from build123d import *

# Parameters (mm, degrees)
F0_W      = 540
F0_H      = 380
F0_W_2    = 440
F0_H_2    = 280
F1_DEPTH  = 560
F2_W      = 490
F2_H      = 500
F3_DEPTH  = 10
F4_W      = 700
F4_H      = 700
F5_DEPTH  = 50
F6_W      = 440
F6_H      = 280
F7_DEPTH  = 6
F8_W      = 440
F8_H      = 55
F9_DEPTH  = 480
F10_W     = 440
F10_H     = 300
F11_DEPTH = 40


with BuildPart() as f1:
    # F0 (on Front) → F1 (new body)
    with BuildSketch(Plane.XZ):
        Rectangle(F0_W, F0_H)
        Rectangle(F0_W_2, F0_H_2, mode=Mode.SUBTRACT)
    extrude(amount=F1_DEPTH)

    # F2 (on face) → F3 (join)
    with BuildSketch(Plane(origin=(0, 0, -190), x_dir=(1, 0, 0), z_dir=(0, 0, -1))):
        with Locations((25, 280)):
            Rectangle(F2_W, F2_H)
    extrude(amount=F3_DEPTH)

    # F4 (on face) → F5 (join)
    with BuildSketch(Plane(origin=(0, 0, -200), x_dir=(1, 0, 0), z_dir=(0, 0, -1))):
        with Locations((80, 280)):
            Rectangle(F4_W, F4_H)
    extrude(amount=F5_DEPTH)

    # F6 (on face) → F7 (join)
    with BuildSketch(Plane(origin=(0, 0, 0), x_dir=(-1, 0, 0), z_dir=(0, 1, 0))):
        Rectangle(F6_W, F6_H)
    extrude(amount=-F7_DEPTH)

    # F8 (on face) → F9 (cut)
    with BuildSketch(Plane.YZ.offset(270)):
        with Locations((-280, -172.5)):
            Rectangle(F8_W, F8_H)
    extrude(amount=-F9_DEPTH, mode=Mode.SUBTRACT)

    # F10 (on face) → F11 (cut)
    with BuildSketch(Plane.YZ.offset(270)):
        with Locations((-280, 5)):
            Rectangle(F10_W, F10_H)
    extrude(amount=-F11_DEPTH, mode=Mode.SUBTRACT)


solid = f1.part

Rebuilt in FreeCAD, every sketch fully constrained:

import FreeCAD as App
import Part
import Sketcher

doc = App.newDocument("Part")
body = doc.addObject("PartDesign::Body", "Body")

# Sketch on XZ plane
sketch1 = doc.addObject("Sketcher::SketchObject", "Sketch")
body.addObject(sketch1)
sketch1.AttachmentSupport = (doc.XZ_Plane, [""])
sketch1.MapMode = "FlatFace"
sketch1.addGeometry(Part.LineSegment(App.Vector(-270, 190, 0), App.Vector(-270, -190, 0)), False)
sketch1.addGeometry(Part.LineSegment(App.Vector(-270, -190, 0), App.Vector(270, -190, 0)), False)
sketch1.addGeometry(Part.LineSegment(App.Vector(270, -190, 0), App.Vector(270, 190, 0)), False)
sketch1.addGeometry(Part.LineSegment(App.Vector(270, 190, 0), App.Vector(-270, 190, 0)), False)
sketch1.addGeometry(Part.LineSegment(App.Vector(220, -140, 0), App.Vector(-220, -140, 0)), False)
sketch1.addGeometry(Part.LineSegment(App.Vector(-220, -140, 0), App.Vector(-220, 140, 0)), False)
sketch1.addGeometry(Part.LineSegment(App.Vector(-220, 140, 0), App.Vector(220, 140, 0)), False)
sketch1.addGeometry(Part.LineSegment(App.Vector(220, 140, 0), App.Vector(220, -140, 0)), False)
sketch1.addConstraint(Sketcher.Constraint("Coincident", 0, 2, 1, 1))
sketch1.addConstraint(Sketcher.Constraint("Coincident", 1, 2, 2, 1))
sketch1.addConstraint(Sketcher.Constraint("Coincident", 2, 2, 3, 1))
sketch1.addConstraint(Sketcher.Constraint("Coincident", 3, 2, 0, 1))
sketch1.addConstraint(Sketcher.Constraint("Coincident", 4, 2, 5, 1))
sketch1.addConstraint(Sketcher.Constraint("Coincident", 5, 2, 6, 1))
sketch1.addConstraint(Sketcher.Constraint("Coincident", 6, 2, 7, 1))
sketch1.addConstraint(Sketcher.Constraint("Coincident", 7, 2, 4, 1))
sketch1.addConstraint(Sketcher.Constraint("Vertical", 0))
sketch1.addConstraint(Sketcher.Constraint("Horizontal", 1))
sketch1.addConstraint(Sketcher.Constraint("Vertical", 2))
sketch1.addConstraint(Sketcher.Constraint("Horizontal", 3))
sketch1.addConstraint(Sketcher.Constraint("Horizontal", 4))
sketch1.addConstraint(Sketcher.Constraint("Vertical", 5))
sketch1.addConstraint(Sketcher.Constraint("Horizontal", 6))
sketch1.addConstraint(Sketcher.Constraint("Vertical", 7))
sketch1.addConstraint(Sketcher.Constraint("Symmetric", 0, 2, 2, 2, -1, 1))
sketch1.addConstraint(Sketcher.Constraint("Symmetric", 4, 2, 6, 2, -1, 1))
sketch1.addConstraint(Sketcher.Constraint("DistanceX", 1, 1, 1, 2, 540.0))
sketch1.addConstraint(Sketcher.Constraint("DistanceX", 4, 2, 4, 1, 440.0))
sketch1.addConstraint(Sketcher.Constraint("DistanceY", 0, 2, 0, 1, 380.0))
sketch1.addConstraint(Sketcher.Constraint("DistanceY", 5, 1, 5, 2, 280.0))
pad1 = doc.addObject("PartDesign::Pad", "Pad")
body.addObject(pad1)
pad1.Profile = sketch1
pad1.Length = 560

# Sketch on XY plane
sketch2 = doc.addObject("Sketcher::SketchObject", "Sketch001")
body.addObject(sketch2)
sketch2.AttachmentSupport = (doc.XY_Plane, [""])
sketch2.MapMode = "FlatFace"
sketch2.AttachmentOffset = App.Placement(App.Vector(0, 0, -190), App.Rotation())
sketch2.addGeometry(Part.LineSegment(App.Vector(-220, -530, 0), App.Vector(-220, -30, 0)), False)
sketch2.addGeometry(Part.LineSegment(App.Vector(-220, -30, 0), App.Vector(270, -30, 0)), False)
sketch2.addGeometry(Part.LineSegment(App.Vector(270, -30, 0), App.Vector(270, -530, 0)), False)
sketch2.addGeometry(Part.LineSegment(App.Vector(270, -530, 0), App.Vector(-220, -530, 0)), False)
sketch2.addConstraint(Sketcher.Constraint("Coincident", 0, 2, 1, 1))
sketch2.addConstraint(Sketcher.Constraint("Coincident", 1, 2, 2, 1))
sketch2.addConstraint(Sketcher.Constraint("Coincident", 2, 2, 3, 1))
sketch2.addConstraint(Sketcher.Constraint("Coincident", 3, 2, 0, 1))
sketch2.addConstraint(Sketcher.Constraint("Vertical", 0))
sketch2.addConstraint(Sketcher.Constraint("Horizontal", 1))
sketch2.addConstraint(Sketcher.Constraint("Vertical", 2))
sketch2.addConstraint(Sketcher.Constraint("Horizontal", 3))
sketch2.addConstraint(Sketcher.Constraint("DistanceX", 1, 1, 1, 2, 490.0))
sketch2.addConstraint(Sketcher.Constraint("DistanceY", 0, 1, 0, 2, 500.0))
sketch2.addConstraint(Sketcher.Constraint("DistanceX", 0, 2, -1, 1, 220.0))
sketch2.addConstraint(Sketcher.Constraint("DistanceY", 0, 2, -1, 1, 30.0))
pad2 = doc.addObject("PartDesign::Pad", "Pad001")
body.addObject(pad2)
pad2.Profile = sketch2
pad2.Length = 10
pad2.Reversed = True

# Sketch on XY plane
sketch3 = doc.addObject("Sketcher::SketchObject", "Sketch002")
body.addObject(sketch3)
sketch3.AttachmentSupport = (doc.XY_Plane, [""])
sketch3.MapMode = "FlatFace"
sketch3.AttachmentOffset = App.Placement(App.Vector(0, 0, -200), App.Rotation())
sketch3.addGeometry(Part.LineSegment(App.Vector(-270, -630, 0), App.Vector(-270, 70, 0)), False)
sketch3.addGeometry(Part.LineSegment(App.Vector(-270, 70, 0), App.Vector(430, 70, 0)), False)
sketch3.addGeometry(Part.LineSegment(App.Vector(430, 70, 0), App.Vector(430, -630, 0)), False)
sketch3.addGeometry(Part.LineSegment(App.Vector(430, -630, 0), App.Vector(-270, -630, 0)), False)
sketch3.addConstraint(Sketcher.Constraint("Coincident", 0, 2, 1, 1))
sketch3.addConstraint(Sketcher.Constraint("Coincident", 1, 2, 2, 1))
sketch3.addConstraint(Sketcher.Constraint("Coincident", 2, 2, 3, 1))
sketch3.addConstraint(Sketcher.Constraint("Coincident", 3, 2, 0, 1))
sketch3.addConstraint(Sketcher.Constraint("Vertical", 0))
sketch3.addConstraint(Sketcher.Constraint("Horizontal", 1))
sketch3.addConstraint(Sketcher.Constraint("Vertical", 2))
sketch3.addConstraint(Sketcher.Constraint("Horizontal", 3))
sketch3.addConstraint(Sketcher.Constraint("Equal", 3, 0))
sketch3.addConstraint(Sketcher.Constraint("DistanceX", 1, 1, 1, 2, 700.0))
sketch3.addConstraint(Sketcher.Constraint("DistanceX", 0, 2, -1, 1, 270.0))
sketch3.addConstraint(Sketcher.Constraint("DistanceY", -1, 1, 0, 2, 70.0))
pad3 = doc.addObject("PartDesign::Pad", "Pad002")
body.addObject(pad3)
pad3.Profile = sketch3
pad3.Length = 50
pad3.Reversed = True

# Sketch on XZ plane
sketch4 = doc.addObject("Sketcher::SketchObject", "Sketch003")
body.addObject(sketch4)
sketch4.AttachmentSupport = (doc.XZ_Plane, [""])
sketch4.MapMode = "FlatFace"
sketch4.addGeometry(Part.LineSegment(App.Vector(220, 140, 0), App.Vector(220, -140, 0)), False)
sketch4.addGeometry(Part.LineSegment(App.Vector(220, -140, 0), App.Vector(-220, -140, 0)), False)
sketch4.addGeometry(Part.LineSegment(App.Vector(-220, -140, 0), App.Vector(-220, 140, 0)), False)
sketch4.addGeometry(Part.LineSegment(App.Vector(-220, 140, 0), App.Vector(220, 140, 0)), False)
sketch4.addConstraint(Sketcher.Constraint("Coincident", 0, 2, 1, 1))
sketch4.addConstraint(Sketcher.Constraint("Coincident", 1, 2, 2, 1))
sketch4.addConstraint(Sketcher.Constraint("Coincident", 2, 2, 3, 1))
sketch4.addConstraint(Sketcher.Constraint("Coincident", 3, 2, 0, 1))
sketch4.addConstraint(Sketcher.Constraint("Vertical", 0))
sketch4.addConstraint(Sketcher.Constraint("Horizontal", 1))
sketch4.addConstraint(Sketcher.Constraint("Vertical", 2))
sketch4.addConstraint(Sketcher.Constraint("Horizontal", 3))
sketch4.addConstraint(Sketcher.Constraint("Symmetric", 0, 2, 2, 2, -1, 1))
sketch4.addConstraint(Sketcher.Constraint("DistanceX", 1, 2, 1, 1, 440.0))
sketch4.addConstraint(Sketcher.Constraint("DistanceY", 0, 2, 0, 1, 280.0))
pad4 = doc.addObject("PartDesign::Pad", "Pad003")
body.addObject(pad4)
pad4.Profile = sketch4
pad4.Length = 6

# Sketch on YZ plane
sketch5 = doc.addObject("Sketcher::SketchObject", "Sketch004")
body.addObject(sketch5)
sketch5.AttachmentSupport = (doc.YZ_Plane, [""])
sketch5.MapMode = "FlatFace"
sketch5.AttachmentOffset = App.Placement(App.Vector(0, 0, 270), App.Rotation())
sketch5.addGeometry(Part.LineSegment(App.Vector(-500, -145, 0), App.Vector(-500, -200, 0)), False)
sketch5.addGeometry(Part.LineSegment(App.Vector(-500, -200, 0), App.Vector(-60, -200, 0)), False)
sketch5.addGeometry(Part.LineSegment(App.Vector(-60, -200, 0), App.Vector(-60, -145, 0)), False)
sketch5.addGeometry(Part.LineSegment(App.Vector(-60, -145, 0), App.Vector(-500, -145, 0)), False)
sketch5.addConstraint(Sketcher.Constraint("Coincident", 0, 2, 1, 1))
sketch5.addConstraint(Sketcher.Constraint("Coincident", 1, 2, 2, 1))
sketch5.addConstraint(Sketcher.Constraint("Coincident", 2, 2, 3, 1))
sketch5.addConstraint(Sketcher.Constraint("Coincident", 3, 2, 0, 1))
sketch5.addConstraint(Sketcher.Constraint("Vertical", 0))
sketch5.addConstraint(Sketcher.Constraint("Horizontal", 1))
sketch5.addConstraint(Sketcher.Constraint("Vertical", 2))
sketch5.addConstraint(Sketcher.Constraint("Horizontal", 3))
sketch5.addConstraint(Sketcher.Constraint("DistanceX", 1, 1, 1, 2, 440.0))
sketch5.addConstraint(Sketcher.Constraint("DistanceY", 0, 2, 0, 1, 55.0))
sketch5.addConstraint(Sketcher.Constraint("DistanceX", 0, 2, -1, 1, 500.0))
sketch5.addConstraint(Sketcher.Constraint("DistanceY", 0, 2, -1, 1, 200.0))
pocket1 = doc.addObject("PartDesign::Pocket", "Pocket")
body.addObject(pocket1)
pocket1.Profile = sketch5
pocket1.Length = 480

# Sketch on YZ plane
sketch6 = doc.addObject("Sketcher::SketchObject", "Sketch005")
body.addObject(sketch6)
sketch6.AttachmentSupport = (doc.YZ_Plane, [""])
sketch6.MapMode = "FlatFace"
sketch6.AttachmentOffset = App.Placement(App.Vector(0, 0, 270), App.Rotation())
sketch6.addGeometry(Part.LineSegment(App.Vector(-500, 155, 0), App.Vector(-500, -145, 0)), False)
sketch6.addGeometry(Part.LineSegment(App.Vector(-500, -145, 0), App.Vector(-60, -145, 0)), False)
sketch6.addGeometry(Part.LineSegment(App.Vector(-60, -145, 0), App.Vector(-60, 155, 0)), False)
sketch6.addGeometry(Part.LineSegment(App.Vector(-60, 155, 0), App.Vector(-500, 155, 0)), False)
sketch6.addConstraint(Sketcher.Constraint("Coincident", 0, 2, 1, 1))
sketch6.addConstraint(Sketcher.Constraint("Coincident", 1, 2, 2, 1))
sketch6.addConstraint(Sketcher.Constraint("Coincident", 2, 2, 3, 1))
sketch6.addConstraint(Sketcher.Constraint("Coincident", 3, 2, 0, 1))
sketch6.addConstraint(Sketcher.Constraint("Vertical", 0))
sketch6.addConstraint(Sketcher.Constraint("Horizontal", 1))
sketch6.addConstraint(Sketcher.Constraint("Vertical", 2))
sketch6.addConstraint(Sketcher.Constraint("Horizontal", 3))
sketch6.addConstraint(Sketcher.Constraint("DistanceX", 1, 1, 1, 2, 440.0))
sketch6.addConstraint(Sketcher.Constraint("DistanceY", 0, 2, 0, 1, 300.0))
sketch6.addConstraint(Sketcher.Constraint("DistanceX", 0, 2, -1, 1, 500.0))
sketch6.addConstraint(Sketcher.Constraint("DistanceY", 0, 2, -1, 1, 145.0))
pocket2 = doc.addObject("PartDesign::Pocket", "Pocket001")
body.addObject(pocket2)
pocket2.Profile = sketch6
pocket2.Length = 40

doc.recompute()
